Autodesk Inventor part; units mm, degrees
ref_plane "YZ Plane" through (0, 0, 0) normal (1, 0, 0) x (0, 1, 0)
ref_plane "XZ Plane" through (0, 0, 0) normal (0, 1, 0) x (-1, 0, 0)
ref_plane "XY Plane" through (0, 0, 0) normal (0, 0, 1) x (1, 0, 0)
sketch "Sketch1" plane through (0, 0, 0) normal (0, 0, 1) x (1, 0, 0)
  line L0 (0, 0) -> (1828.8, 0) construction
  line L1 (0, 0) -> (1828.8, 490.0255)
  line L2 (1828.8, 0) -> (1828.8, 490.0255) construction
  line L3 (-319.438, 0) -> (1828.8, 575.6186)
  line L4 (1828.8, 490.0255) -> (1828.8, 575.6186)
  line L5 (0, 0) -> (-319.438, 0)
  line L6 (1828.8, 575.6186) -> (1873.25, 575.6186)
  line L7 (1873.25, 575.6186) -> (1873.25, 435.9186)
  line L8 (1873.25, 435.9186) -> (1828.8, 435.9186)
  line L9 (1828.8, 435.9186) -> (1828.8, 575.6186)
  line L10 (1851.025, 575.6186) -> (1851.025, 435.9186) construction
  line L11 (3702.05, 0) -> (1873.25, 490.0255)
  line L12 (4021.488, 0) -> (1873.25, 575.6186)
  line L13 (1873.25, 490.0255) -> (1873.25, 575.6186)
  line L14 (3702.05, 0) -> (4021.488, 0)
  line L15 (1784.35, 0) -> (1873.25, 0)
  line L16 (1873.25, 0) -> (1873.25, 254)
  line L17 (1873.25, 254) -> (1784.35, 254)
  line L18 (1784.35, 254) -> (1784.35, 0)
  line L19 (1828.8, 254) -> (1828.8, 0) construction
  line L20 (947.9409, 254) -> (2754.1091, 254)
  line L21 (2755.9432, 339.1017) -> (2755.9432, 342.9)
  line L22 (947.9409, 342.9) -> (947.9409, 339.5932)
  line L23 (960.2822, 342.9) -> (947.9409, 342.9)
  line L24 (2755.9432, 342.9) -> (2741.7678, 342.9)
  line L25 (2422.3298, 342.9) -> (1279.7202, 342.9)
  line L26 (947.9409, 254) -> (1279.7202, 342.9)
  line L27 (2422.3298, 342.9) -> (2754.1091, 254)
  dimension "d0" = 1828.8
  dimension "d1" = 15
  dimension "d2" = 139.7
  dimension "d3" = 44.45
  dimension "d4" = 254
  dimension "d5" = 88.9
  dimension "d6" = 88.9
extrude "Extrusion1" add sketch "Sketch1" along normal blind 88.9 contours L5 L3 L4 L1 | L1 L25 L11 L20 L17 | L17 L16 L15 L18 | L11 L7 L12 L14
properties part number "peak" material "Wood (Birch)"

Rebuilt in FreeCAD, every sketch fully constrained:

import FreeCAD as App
import Part
import Sketcher
from FreeCAD import Vector
Q = App.Units.Quantity


def add_polygon(sketch, points):
    """Adds a closed chain of lines whose ends are joined by coincident constraints."""
    first, n = sketch.GeometryCount, len(points)
    for a, b in zip(points, points[1:] + points[:1]):
        sketch.addGeometry(Part.LineSegment(App.Vector(*a, 0), App.Vector(*b, 0)), False)
    for i in range(n):
        sketch.addConstraint(Sketcher.Constraint("Coincident", first + i, 2, first + (i + 1) % n, 1))

doc = App.newDocument("Part")
body = doc.addObject("PartDesign::Body", "Body")

sketch1 = body.newObject("Sketcher::SketchObject", "Sketch")
sketch1.AttachmentSupport = (doc.getObject("XY_Plane"), [""])
sketch1.MapMode = "FlatFace"
add_polygon(sketch1, [(-319, 0), (0, 0), (948, 254), (1784, 254), (1784, 0), (1873, 0), (1873, 254), (2754, 254), (3702, 0), (4021, 0), (1873, 576), (1873, 490), (2422, 343), (1280, 343), (1829, 490), (1829, 576)])
sketch1.addConstraint(Sketcher.Constraint("Horizontal", 0))
sketch1.addConstraint(Sketcher.Constraint("Horizontal", 2))
sketch1.addConstraint(Sketcher.Constraint("Vertical", 3))
sketch1.addConstraint(Sketcher.Constraint("Horizontal", 4))
sketch1.addConstraint(Sketcher.Constraint("Vertical", 5))
sketch1.addConstraint(Sketcher.Constraint("Horizontal", 6))
sketch1.addConstraint(Sketcher.Constraint("Horizontal", 8))
sketch1.addConstraint(Sketcher.Constraint("Vertical", 10))
sketch1.addConstraint(Sketcher.Constraint("Horizontal", 12))
sketch1.addConstraint(Sketcher.Constraint("Vertical", 14))
sketch1.addConstraint(Sketcher.Constraint("Coincident", 0, 2, -1, 1))
sketch1.addConstraint(Sketcher.Constraint("PointOnObject", 3, 2, -1))
sketch1.addConstraint(Sketcher.Constraint("PointOnObject", 7, 2, -1))
sketch1.addConstraint(Sketcher.Constraint("Parallel", 7, 9))
sketch1.addConstraint(Sketcher.Constraint("Parallel", 9, 11))
sketch1.addConstraint(Sketcher.Constraint("Parallel", 1, 13))
sketch1.addConstraint(Sketcher.Constraint("Parallel", 13, 15))
sketch1.addConstraint(Sketcher.Constraint("Horizontal", 2, 2, 5, 2))
sketch1.addConstraint(Sketcher.Constraint("Horizontal", 10, 2, 13, 2))
sketch1.addConstraint(Sketcher.Constraint("Horizontal", 9, 2, 14, 2))
sketch1.addConstraint(Sketcher.Constraint("Vertical", 5, 2, 9, 2))
sketch1.addConstraint(Sketcher.Constraint("Equal", 0, 8))
sketch1.addConstraint(Sketcher.Constraint("Equal", 1, 7))
sketch1.addConstraint(Sketcher.Constraint("DistanceY", 3, 2, 3, 1, Q("10 in")))
sketch1.addConstraint(Sketcher.Constraint("DistanceX", 4, 1, 4, 2, Q("3.5 in")))
sketch1.addConstraint(Sketcher.Constraint("DistanceX", -1, 1, 13, 2, Q("72 in")))
sketch1.addConstraint(Sketcher.Constraint("Angle", 1, Q("15 deg")))
sketch1.addConstraint(Sketcher.Constraint("DistanceY", 6, 2, 11, 2, Q("3.5 in")))
sketch1.addConstraint(Sketcher.Constraint("DistanceX", 13, 2, 10, 2, Q("1.75 in")))
sketch1.addConstraint(Sketcher.Constraint("DistanceX", 0, 1, 0, 2, Q("12.5763 in")))
sketch1.addConstraint(Sketcher.Constraint("DistanceY", 10, 2, 10, 1, Q("3.3698 in")))
pad1 = body.newObject("PartDesign::Pad", "Pad")
pad1.Profile = sketch1
pad1.Length = Q("3.5 in")

doc.recompute()
